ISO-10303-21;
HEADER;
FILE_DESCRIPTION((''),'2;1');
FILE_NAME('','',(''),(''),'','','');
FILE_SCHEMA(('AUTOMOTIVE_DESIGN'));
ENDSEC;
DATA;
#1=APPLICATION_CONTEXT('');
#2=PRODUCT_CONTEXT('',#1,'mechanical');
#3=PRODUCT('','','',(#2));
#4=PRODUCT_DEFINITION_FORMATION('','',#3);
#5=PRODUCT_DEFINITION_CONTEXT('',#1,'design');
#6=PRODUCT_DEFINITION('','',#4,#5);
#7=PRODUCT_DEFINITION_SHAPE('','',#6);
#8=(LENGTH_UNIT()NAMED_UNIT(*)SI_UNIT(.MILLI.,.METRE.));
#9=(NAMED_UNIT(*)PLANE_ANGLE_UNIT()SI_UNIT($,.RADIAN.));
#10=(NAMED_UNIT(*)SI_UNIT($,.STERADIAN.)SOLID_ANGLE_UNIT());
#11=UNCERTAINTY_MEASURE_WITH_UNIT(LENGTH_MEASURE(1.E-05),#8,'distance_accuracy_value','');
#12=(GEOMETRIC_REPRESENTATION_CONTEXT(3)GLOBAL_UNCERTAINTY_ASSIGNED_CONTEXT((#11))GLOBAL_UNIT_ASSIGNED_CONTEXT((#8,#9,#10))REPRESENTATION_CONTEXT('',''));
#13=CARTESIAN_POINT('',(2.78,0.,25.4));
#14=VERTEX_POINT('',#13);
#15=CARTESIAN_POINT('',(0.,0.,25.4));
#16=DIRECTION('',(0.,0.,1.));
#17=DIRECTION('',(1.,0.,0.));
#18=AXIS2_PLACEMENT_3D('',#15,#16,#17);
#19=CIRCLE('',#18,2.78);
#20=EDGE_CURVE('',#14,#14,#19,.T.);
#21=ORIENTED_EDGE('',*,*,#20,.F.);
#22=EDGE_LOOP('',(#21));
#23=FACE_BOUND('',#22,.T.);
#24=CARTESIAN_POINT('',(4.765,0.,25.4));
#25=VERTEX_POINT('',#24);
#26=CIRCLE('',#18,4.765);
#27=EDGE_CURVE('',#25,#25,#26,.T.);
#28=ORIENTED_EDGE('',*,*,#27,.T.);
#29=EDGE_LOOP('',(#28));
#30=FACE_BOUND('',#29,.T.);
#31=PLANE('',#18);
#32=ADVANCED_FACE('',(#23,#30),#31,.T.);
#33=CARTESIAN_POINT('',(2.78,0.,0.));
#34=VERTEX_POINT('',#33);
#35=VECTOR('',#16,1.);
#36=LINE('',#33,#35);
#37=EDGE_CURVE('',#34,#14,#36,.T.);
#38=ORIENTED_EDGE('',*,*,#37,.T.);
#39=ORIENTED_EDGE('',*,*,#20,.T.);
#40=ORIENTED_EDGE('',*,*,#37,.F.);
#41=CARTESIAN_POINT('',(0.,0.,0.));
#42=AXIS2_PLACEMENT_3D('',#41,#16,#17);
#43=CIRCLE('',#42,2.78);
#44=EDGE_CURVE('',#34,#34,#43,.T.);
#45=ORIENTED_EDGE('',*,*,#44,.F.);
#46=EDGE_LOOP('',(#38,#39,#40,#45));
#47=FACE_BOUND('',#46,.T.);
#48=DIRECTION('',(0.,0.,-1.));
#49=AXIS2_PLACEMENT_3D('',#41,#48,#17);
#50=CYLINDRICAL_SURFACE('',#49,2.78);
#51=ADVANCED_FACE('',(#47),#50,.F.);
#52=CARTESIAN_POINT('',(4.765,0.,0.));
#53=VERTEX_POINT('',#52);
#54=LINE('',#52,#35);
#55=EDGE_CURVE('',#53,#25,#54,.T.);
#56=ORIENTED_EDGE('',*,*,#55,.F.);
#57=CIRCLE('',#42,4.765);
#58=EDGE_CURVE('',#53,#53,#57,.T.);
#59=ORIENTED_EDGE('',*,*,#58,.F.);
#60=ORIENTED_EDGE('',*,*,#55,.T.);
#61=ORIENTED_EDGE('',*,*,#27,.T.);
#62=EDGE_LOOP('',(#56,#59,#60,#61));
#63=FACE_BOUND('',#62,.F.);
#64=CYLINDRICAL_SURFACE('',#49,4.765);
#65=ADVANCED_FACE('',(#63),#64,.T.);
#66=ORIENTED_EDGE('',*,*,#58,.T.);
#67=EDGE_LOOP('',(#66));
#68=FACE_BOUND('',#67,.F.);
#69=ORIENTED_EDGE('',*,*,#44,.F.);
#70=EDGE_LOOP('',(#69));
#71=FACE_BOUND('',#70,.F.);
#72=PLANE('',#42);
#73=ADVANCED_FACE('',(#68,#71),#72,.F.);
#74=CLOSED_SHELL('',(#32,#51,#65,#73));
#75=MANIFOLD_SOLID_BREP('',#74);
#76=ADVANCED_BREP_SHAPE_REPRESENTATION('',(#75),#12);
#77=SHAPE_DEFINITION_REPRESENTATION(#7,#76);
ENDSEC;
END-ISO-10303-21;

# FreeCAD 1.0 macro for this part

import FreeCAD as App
import Part
import Sketcher
from FreeCAD import Vector
Q = App.Units.Quantity

doc = App.newDocument("Part")
body = doc.addObject("PartDesign::Body", "Body")

# Sketch on XY plane
sketch1 = body.newObject("Sketcher::SketchObject", "Sketch")
sketch1.AttachmentSupport = (doc.getObject("XY_Plane"), [""])
sketch1.MapMode = "FlatFace"
sketch1.addGeometry([
    Part.Circle(Vector(0, 0, 0), Vector(0, 0, 1), 4.8),
    Part.Circle(Vector(0, 0, 0), Vector(0, 0, 1), 2.8),
], False)
sketch1.addConstraint([
    Sketcher.Constraint("Coincident", 0, 3, -1, 1),
    Sketcher.Constraint("Coincident", 1, 3, -1, 1),
    Sketcher.Constraint("Diameter", 0, Q("0.3752 in")),
    Sketcher.Constraint("Diameter", 1, Q("0.2189 in")),
])
pad1 = body.newObject("PartDesign::Pad", "Pad")
pad1.Profile = sketch1
pad1.Length = Q("1 in")

doc.recompute()
